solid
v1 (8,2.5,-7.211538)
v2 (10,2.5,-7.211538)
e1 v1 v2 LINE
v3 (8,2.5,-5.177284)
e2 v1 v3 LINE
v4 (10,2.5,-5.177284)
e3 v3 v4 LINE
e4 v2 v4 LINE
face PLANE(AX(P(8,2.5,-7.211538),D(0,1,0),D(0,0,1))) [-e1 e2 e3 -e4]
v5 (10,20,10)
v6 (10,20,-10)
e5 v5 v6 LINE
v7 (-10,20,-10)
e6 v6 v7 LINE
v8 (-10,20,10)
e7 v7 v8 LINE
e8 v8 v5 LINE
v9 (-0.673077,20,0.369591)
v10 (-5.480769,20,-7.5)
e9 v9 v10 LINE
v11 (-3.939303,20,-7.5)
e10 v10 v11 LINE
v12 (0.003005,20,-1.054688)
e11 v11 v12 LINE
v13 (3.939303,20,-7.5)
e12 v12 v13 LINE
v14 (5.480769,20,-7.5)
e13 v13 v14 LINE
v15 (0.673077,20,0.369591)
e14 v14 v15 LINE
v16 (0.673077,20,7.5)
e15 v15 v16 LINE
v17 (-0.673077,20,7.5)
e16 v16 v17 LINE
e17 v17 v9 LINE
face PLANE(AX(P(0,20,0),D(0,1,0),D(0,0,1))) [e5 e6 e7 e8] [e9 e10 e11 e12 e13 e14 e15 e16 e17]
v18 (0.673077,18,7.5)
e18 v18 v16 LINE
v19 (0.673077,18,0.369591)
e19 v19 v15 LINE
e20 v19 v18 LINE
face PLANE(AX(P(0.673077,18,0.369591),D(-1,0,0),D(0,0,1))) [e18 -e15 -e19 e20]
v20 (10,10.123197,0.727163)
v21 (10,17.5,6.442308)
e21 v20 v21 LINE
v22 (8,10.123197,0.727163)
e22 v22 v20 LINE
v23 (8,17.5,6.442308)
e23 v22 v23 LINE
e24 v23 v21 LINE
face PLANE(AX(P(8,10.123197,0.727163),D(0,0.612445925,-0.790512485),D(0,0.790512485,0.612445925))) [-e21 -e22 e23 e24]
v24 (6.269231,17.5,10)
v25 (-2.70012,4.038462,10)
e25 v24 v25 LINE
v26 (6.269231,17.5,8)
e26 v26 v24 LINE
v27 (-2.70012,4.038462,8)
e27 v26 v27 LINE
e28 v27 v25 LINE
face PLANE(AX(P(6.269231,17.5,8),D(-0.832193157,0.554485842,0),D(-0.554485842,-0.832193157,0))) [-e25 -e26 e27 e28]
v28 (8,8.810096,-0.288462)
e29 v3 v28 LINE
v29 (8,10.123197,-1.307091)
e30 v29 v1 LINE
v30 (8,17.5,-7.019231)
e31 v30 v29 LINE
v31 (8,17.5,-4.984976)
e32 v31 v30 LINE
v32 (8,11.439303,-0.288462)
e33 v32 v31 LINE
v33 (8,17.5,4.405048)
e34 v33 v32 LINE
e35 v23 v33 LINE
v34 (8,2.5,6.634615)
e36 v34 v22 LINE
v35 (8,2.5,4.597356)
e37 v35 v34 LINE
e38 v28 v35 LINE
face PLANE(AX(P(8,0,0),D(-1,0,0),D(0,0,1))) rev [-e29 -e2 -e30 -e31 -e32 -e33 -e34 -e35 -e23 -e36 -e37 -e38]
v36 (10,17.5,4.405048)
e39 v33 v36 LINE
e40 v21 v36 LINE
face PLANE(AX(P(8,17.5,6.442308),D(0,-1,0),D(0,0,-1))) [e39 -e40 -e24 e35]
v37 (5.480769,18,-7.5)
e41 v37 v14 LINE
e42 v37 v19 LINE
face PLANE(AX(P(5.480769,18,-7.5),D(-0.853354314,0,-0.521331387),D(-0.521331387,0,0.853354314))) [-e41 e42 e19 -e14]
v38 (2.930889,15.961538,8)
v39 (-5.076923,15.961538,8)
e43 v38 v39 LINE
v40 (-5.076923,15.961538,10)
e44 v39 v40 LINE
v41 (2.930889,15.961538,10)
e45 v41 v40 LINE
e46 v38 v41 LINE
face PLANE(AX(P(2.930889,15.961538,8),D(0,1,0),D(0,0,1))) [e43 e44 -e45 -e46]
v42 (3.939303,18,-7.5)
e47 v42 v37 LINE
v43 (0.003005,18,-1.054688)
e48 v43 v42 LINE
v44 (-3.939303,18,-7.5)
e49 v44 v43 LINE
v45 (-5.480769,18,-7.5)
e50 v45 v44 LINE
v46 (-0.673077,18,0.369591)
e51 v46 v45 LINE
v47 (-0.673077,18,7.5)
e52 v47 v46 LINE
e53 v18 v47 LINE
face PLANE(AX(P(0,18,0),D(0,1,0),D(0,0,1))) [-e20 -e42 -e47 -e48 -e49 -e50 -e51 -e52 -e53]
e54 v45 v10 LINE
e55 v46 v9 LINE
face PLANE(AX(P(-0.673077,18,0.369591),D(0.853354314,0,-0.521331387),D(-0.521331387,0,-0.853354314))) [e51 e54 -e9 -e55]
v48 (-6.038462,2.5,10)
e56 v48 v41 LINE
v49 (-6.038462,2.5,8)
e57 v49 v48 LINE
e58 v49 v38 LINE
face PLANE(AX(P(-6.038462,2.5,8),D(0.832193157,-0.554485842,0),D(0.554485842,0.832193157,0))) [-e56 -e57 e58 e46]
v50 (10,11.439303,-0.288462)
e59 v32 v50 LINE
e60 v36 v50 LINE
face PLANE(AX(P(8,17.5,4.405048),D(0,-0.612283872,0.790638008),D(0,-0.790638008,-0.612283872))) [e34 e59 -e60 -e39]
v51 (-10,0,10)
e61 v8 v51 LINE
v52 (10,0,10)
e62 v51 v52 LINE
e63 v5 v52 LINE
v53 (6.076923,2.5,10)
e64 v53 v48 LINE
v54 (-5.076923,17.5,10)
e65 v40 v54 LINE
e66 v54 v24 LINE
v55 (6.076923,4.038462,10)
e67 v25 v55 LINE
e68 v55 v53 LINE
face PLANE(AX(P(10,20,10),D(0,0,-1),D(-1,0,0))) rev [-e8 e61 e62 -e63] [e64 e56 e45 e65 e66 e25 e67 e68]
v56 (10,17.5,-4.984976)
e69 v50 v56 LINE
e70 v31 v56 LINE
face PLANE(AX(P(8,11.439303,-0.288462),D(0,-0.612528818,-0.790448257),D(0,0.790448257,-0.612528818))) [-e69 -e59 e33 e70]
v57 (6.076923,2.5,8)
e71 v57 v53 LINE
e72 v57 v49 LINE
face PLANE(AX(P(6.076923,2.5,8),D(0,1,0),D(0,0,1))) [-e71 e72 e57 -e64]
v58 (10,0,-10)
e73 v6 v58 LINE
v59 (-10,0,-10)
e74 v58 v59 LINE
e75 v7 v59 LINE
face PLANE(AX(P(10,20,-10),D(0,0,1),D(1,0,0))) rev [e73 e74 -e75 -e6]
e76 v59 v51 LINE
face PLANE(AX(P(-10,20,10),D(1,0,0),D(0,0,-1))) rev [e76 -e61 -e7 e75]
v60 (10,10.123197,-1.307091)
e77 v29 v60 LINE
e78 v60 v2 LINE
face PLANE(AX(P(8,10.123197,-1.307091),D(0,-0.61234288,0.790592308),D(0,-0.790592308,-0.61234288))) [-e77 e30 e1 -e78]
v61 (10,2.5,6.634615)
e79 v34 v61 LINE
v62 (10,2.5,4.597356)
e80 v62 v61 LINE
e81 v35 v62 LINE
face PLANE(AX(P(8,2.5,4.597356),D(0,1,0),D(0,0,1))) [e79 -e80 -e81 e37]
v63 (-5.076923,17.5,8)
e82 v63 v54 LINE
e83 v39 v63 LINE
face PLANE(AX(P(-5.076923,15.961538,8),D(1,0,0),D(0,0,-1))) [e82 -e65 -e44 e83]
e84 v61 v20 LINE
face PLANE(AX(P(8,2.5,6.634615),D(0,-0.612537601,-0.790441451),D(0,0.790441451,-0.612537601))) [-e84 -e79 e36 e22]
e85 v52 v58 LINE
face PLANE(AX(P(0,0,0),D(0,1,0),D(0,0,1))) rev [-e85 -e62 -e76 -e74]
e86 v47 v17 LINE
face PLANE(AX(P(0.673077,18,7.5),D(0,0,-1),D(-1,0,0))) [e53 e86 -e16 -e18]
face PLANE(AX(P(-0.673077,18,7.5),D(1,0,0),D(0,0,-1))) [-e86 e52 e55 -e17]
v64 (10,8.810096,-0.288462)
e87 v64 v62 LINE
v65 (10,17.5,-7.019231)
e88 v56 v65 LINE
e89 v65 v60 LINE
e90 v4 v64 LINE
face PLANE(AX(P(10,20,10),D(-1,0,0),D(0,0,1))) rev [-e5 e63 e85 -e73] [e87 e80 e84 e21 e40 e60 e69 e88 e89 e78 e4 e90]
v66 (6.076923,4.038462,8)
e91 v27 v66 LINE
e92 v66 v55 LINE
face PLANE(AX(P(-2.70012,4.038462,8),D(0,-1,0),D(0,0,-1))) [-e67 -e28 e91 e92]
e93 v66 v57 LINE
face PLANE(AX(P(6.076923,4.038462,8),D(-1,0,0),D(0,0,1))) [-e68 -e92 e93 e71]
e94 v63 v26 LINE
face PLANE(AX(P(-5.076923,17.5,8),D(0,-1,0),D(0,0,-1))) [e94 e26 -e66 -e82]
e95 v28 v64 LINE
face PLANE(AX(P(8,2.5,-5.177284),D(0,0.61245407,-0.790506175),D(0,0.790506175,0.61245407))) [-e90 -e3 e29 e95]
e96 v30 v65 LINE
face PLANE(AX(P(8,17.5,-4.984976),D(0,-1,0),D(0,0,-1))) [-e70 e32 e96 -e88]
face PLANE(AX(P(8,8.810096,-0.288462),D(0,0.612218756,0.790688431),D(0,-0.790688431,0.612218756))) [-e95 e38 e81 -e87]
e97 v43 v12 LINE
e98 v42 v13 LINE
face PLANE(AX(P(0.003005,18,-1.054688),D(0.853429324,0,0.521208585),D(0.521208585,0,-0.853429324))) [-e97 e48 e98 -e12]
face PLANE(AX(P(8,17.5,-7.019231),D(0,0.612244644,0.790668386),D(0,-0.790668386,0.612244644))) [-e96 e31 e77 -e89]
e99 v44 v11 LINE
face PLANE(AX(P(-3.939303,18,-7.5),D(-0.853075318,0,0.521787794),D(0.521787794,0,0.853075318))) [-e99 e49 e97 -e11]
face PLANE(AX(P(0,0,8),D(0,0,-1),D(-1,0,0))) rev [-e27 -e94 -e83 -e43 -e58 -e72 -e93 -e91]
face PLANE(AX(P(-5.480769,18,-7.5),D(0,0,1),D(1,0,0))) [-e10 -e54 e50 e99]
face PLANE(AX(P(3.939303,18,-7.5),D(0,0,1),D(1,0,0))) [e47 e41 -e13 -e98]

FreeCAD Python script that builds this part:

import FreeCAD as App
import Part
import Sketcher
from FreeCAD import Vector

doc = App.newDocument("Part")
params = doc.addObject("Spreadsheet::Sheet", "Params")
for row, (alias, value) in enumerate([
    ("sketch1_width", "20 mm"),
    ("pad1_length", "20 mm"),
    ("pocket1_length", "2 mm"),
    ("pocket2_length", "2 mm"),
    ("pocket3_length", "2 mm"),
], start=1):
    params.set(f"A{row}", alias)
    params.set(f"B{row}", "=" + value)
    params.setAlias(f"B{row}", alias)

body = doc.addObject("PartDesign::Body", "Body")

# Sketch on XZ plane
sketch1 = body.newObject("Sketcher::SketchObject", "Sketch")
sketch1.AttachmentSupport = (doc.getObject("XZ_Plane"), [""])
sketch1.MapMode = "FlatFace"
sketch1.addGeometry(Part.LineSegment(Vector(-10, -10, 0), Vector(-10, 10, 0)), False)
sketch1.addGeometry(Part.LineSegment(Vector(-10, 10, 0), Vector(10, 10, 0)), False)
sketch1.addGeometry(Part.LineSegment(Vector(10, 10, 0), Vector(10, -10, 0)), False)
sketch1.addGeometry(Part.LineSegment(Vector(10, -10, 0), Vector(-10, -10, 0)), False)
sketch1.addConstraint(Sketcher.Constraint("Coincident", 0, 2, 1, 1))
sketch1.addConstraint(Sketcher.Constraint("Coincident", 1, 2, 2, 1))
sketch1.addConstraint(Sketcher.Constraint("Coincident", 2, 2, 3, 1))
sketch1.addConstraint(Sketcher.Constraint("Coincident", 3, 2, 0, 1))
sketch1.addConstraint(Sketcher.Constraint("Vertical", 0))
sketch1.addConstraint(Sketcher.Constraint("Horizontal", 1))
sketch1.addConstraint(Sketcher.Constraint("Vertical", 2))
sketch1.addConstraint(Sketcher.Constraint("Horizontal", 3))
sketch1.addConstraint(Sketcher.Constraint("Symmetric", 0, 2, 2, 2, -1, 1))
sketch1.addConstraint(Sketcher.Constraint("Equal", 3, 0))
sketch1.addConstraint(Sketcher.Constraint("DistanceX", 1, 1, 1, 2, 20.0))
sketch1.setExpression("Constraints[10]", "Params.sketch1_width")
pad1 = body.newObject("PartDesign::Pad", "Pad")
pad1.Profile = sketch1
pad1.setExpression("Length", "Params.pad1_length")
pad1.Reversed = True

# Sketch on XY plane
sketch2 = body.newObject("Sketcher::SketchObject", "Sketch001")
sketch2.AttachmentSupport = (doc.getObject("XY_Plane"), [""])
sketch2.MapMode = "FlatFace"
sketch2.AttachmentOffset = App.Placement(Vector(0, 0, 10), App.Rotation())
sketch2.addGeometry(Part.LineSegment(Vector(-5.076923, 17.5, 0), Vector(-5.076923, 15.961538, 0)), False)
sketch2.addGeometry(Part.LineSegment(Vector(-5.076923, 15.961538, 0), Vector(2.930889, 15.961538, 0)), False)
sketch2.addGeometry(Part.LineSegment(Vector(2.930889, 15.961538, 0), Vector(-6.038462, 2.5, 0)), False)
sketch2.addGeometry(Part.LineSegment(Vector(-6.038462, 2.5, 0), Vector(6.076923, 2.5, 0)), False)
sketch2.addGeometry(Part.LineSegment(Vector(6.076923, 2.5, 0), Vector(6.076923, 4.038462, 0)), False)
sketch2.addGeometry(Part.LineSegment(Vector(6.076923, 4.038462, 0), Vector(-2.70012, 4.038462, 0)), False)
sketch2.addGeometry(Part.LineSegment(Vector(-2.70012, 4.038462, 0), Vector(6.269231, 17.5, 0)), False)
sketch2.addGeometry(Part.LineSegment(Vector(6.269231, 17.5, 0), Vector(-5.076923, 17.5, 0)), False)
sketch2.addConstraint(Sketcher.Constraint("Coincident", 0, 2, 1, 1))
sketch2.addConstraint(Sketcher.Constraint("Coincident", 1, 2, 2, 1))
sketch2.addConstraint(Sketcher.Constraint("Coincident", 2, 2, 3, 1))
sketch2.addConstraint(Sketcher.Constraint("Coincident", 3, 2, 4, 1))
sketch2.addConstraint(Sketcher.Constraint("Coincident", 4, 2, 5, 1))
sketch2.addConstraint(Sketcher.Constraint("Coincident", 5, 2, 6, 1))
sketch2.addConstraint(Sketcher.Constraint("Coincident", 6, 2, 7, 1))
sketch2.addConstraint(Sketcher.Constraint("Coincident", 7, 2, 0, 1))
sketch2.addConstraint(Sketcher.Constraint("Vertical", 0))
sketch2.addConstraint(Sketcher.Constraint("Horizontal", 1))
sketch2.addConstraint(Sketcher.Constraint("Horizontal", 3))
sketch2.addConstraint(Sketcher.Constraint("Vertical", 4))
sketch2.addConstraint(Sketcher.Constraint("Horizontal", 5))
sketch2.addConstraint(Sketcher.Constraint("Horizontal", 7))
sketch2.addConstraint(Sketcher.Constraint("Parallel", 2, 6))
sketch2.addConstraint(Sketcher.Constraint("Equal", 0, 4))
sketch2.addConstraint(Sketcher.Constraint("DistanceY", 3, 2, 6, 2, 15.0))
sketch2.addConstraint(Sketcher.Constraint("DistanceY", -1, 1, 2, 2, 2.5))
sketch2.addConstraint(Sketcher.Constraint("DistanceY", 0, 2, 0, 1, 1.538462))
sketch2.addConstraint(Sketcher.Constraint("Distance", 2, 16.175978))
sketch2.addConstraint(Sketcher.Constraint("DistanceX", 1, 1, 1, 2, 8.007812))
sketch2.addConstraint(Sketcher.Constraint("DistanceX", 3, 1, 3, 2, 12.115385))
sketch2.addConstraint(Sketcher.Constraint("DistanceX", 5, 2, 5, 1, 8.777043))
sketch2.addConstraint(Sketcher.Constraint("DistanceX", -1, 1, 1, 2, 2.930889))
pocket1 = body.newObject("PartDesign::Pocket", "Pocket")
pocket1.Profile = sketch2
pocket1.setExpression("Length", "Params.pocket1_length")

# Sketch on YZ plane
sketch3 = body.newObject("Sketcher::SketchObject", "Sketch002")
sketch3.AttachmentSupport = (doc.getObject("YZ_Plane"), [""])
sketch3.MapMode = "FlatFace"
sketch3.AttachmentOffset = App.Placement(Vector(0, 0, 10), App.Rotation())
sketch3.addGeometry(Part.LineSegment(Vector(17.5, 4.405048, 0), Vector(17.5, 6.442308, 0)), False)
sketch3.addGeometry(Part.LineSegment(Vector(17.5, 6.442308, 0), Vector(10.123197, 0.727163, 0)), False)
sketch3.addGeometry(Part.LineSegment(Vector(10.123197, 0.727163, 0), Vector(2.5, 6.634615, 0)), False)
sketch3.addGeometry(Part.LineSegment(Vector(2.5, 6.634615, 0), Vector(2.5, 4.597356, 0)), False)
sketch3.addGeometry(Part.LineSegment(Vector(2.5, 4.597356, 0), Vector(8.810096, -0.288462, 0)), False)
sketch3.addGeometry(Part.LineSegment(Vector(8.810096, -0.288462, 0), Vector(2.5, -5.177284, 0)), False)
sketch3.addGeometry(Part.LineSegment(Vector(2.5, -5.177284, 0), Vector(2.5, -7.211538, 0)), False)
sketch3.addGeometry(Part.LineSegment(Vector(2.5, -7.211538, 0), Vector(10.123197, -1.307091, 0)), False)
sketch3.addGeometry(Part.LineSegment(Vector(10.123197, -1.307091, 0), Vector(17.5, -7.019231, 0)), False)
sketch3.addGeometry(Part.LineSegment(Vector(17.5, -7.019231, 0), Vector(17.5, -4.984976, 0)), False)
sketch3.addGeometry(Part.LineSegment(Vector(17.5, -4.984976, 0), Vector(11.439303, -0.288462, 0)), False)
sketch3.addGeometry(Part.LineSegment(Vector(11.439303, -0.288462, 0), Vector(17.5, 4.405048, 0)), False)
sketch3.addConstraint(Sketcher.Constraint("Coincident", 0, 2, 1, 1))
sketch3.addConstraint(Sketcher.Constraint("Coincident", 1, 2, 2, 1))
sketch3.addConstraint(Sketcher.Constraint("Coincident", 2, 2, 3, 1))
sketch3.addConstraint(Sketcher.Constraint("Coincident", 3, 2, 4, 1))
sketch3.addConstraint(Sketcher.Constraint("Coincident", 4, 2, 5, 1))
sketch3.addConstraint(Sketcher.Constraint("Coincident", 5, 2, 6, 1))
sketch3.addConstraint(Sketcher.Constraint("Coincident", 6, 2, 7, 1))
sketch3.addConstraint(Sketcher.Constraint("Coincident", 7, 2, 8, 1))
sketch3.addConstraint(Sketcher.Constraint("Coincident", 8, 2, 9, 1))
sketch3.addConstraint(Sketcher.Constraint("Coincident", 9, 2, 10, 1))
sketch3.addConstraint(Sketcher.Constraint("Coincident", 10, 2, 11, 1))
sketch3.addConstraint(Sketcher.Constraint("Coincident", 11, 2, 0, 1))
sketch3.addConstraint(Sketcher.Constraint("Vertical", 0))
sketch3.addConstraint(Sketcher.Constraint("Vertical", 3))
sketch3.addConstraint(Sketcher.Constraint("Vertical", 6))
sketch3.addConstraint(Sketcher.Constraint("Vertical", 9))
sketch3.addConstraint(Sketcher.Constraint("Horizontal", 4, 2, 10, 2))
sketch3.addConstraint(Sketcher.Constraint("Vertical", 3, 2, 5, 2))
sketch3.addConstraint(Sketcher.Constraint("Vertical", 1, 2, 7, 2))
sketch3.addConstraint(Sketcher.Constraint("Vertical", 0, 2, 8, 2))
sketch3.addConstraint(Sketcher.Constraint("Equal", 0, 3))
sketch3.addConstraint(Sketcher.Constraint("Equal", 6, 9))
sketch3.addConstraint(Sketcher.Constraint("DistanceX", 2, 2, 0, 2, 15.0))
sketch3.addConstraint(Sketcher.Constraint("DistanceX", -1, 1, 0, 2, 17.5))
sketch3.addConstraint(Sketcher.Constraint("DistanceY", 0, 1, 0, 2, 2.03726))
sketch3.addConstraint(Sketcher.Constraint("DistanceX", 4, 2, 1, 2, 1.313101))
sketch3.addConstraint(Sketcher.Constraint("DistanceY", 5, 2, 2, 2, 11.811899))
sketch3.addConstraint(Sketcher.Constraint("DistanceY", 6, 2, 1, 2, 7.938702))
sketch3.addConstraint(Sketcher.Constraint("Distance", 1, 9.331672))
sketch3.addConstraint(Sketcher.Constraint("Distance", 4, 7.980509))
sketch3.addConstraint(Sketcher.Constraint("Distance", 5, 7.982349))
sketch3.addConstraint(Sketcher.Constraint("Distance", 8, 9.329832))
sketch3.addConstraint(Sketcher.Constraint("DistanceY", 6, 2, 6, 1, 2.034255))
sketch3.addConstraint(Sketcher.Constraint("DistanceY", 4, 2, -1, 1, 0.288462))
sketch3.addConstraint(Sketcher.Constraint("DistanceY", 7, 2, -1, 1, 1.307091))
sketch3.addConstraint(Sketcher.Constraint("Distance", 10, 7.667418))
pocket2 = body.newObject("PartDesign::Pocket", "Pocket001")
pocket2.Profile = sketch3
pocket2.setExpression("Length", "Params.pocket2_length")

# Sketch on XZ plane
sketch4 = body.newObject("Sketcher::SketchObject", "Sketch003")
sketch4.AttachmentSupport = (doc.getObject("XZ_Plane"), [""])
sketch4.MapMode = "FlatFace"
sketch4.AttachmentOffset = App.Placement(Vector(0, 0, -20), App.Rotation())
sketch4.addGeometry(Part.LineSegment(Vector(-3.939303, -7.5, 0), Vector(-5.480769, -7.5, 0)), False)
sketch4.addGeometry(Part.LineSegment(Vector(-5.480769, -7.5, 0), Vector(-0.673077, 0.369591, 0)), False)
sketch4.addGeometry(Part.LineSegment(Vector(-0.673077, 0.369591, 0), Vector(-0.673077, 7.5, 0)), False)
sketch4.addGeometry(Part.LineSegment(Vector(-0.673077, 7.5, 0), Vector(0.673077, 7.5, 0)), False)
sketch4.addGeometry(Part.LineSegment(Vector(0.673077, 7.5, 0), Vector(0.673077, 0.369591, 0)), False)
sketch4.addGeometry(Part.LineSegment(Vector(0.673077, 0.369591, 0), Vector(5.480769, -7.5, 0)), False)
sketch4.addGeometry(Part.LineSegment(Vector(5.480769, -7.5, 0), Vector(3.939303, -7.5, 0)), False)
sketch4.addGeometry(Part.LineSegment(Vector(3.939303, -7.5, 0), Vector(0.003005, -1.054688, 0)), False)
sketch4.addGeometry(Part.LineSegment(Vector(0.003005, -1.054688, 0), Vector(-3.939303, -7.5, 0)), False)
sketch4.addConstraint(Sketcher.Constraint("Coincident", 0, 2, 1, 1))
sketch4.addConstraint(Sketcher.Constraint("Coincident", 1, 2, 2, 1))
sketch4.addConstraint(Sketcher.Constraint("Coincident", 2, 2, 3, 1))
sketch4.addConstraint(Sketcher.Constraint("Coincident", 3, 2, 4, 1))
sketch4.addConstraint(Sketcher.Constraint("Coincident", 4, 2, 5, 1))
sketch4.addConstraint(Sketcher.Constraint("Coincident", 5, 2, 6, 1))
sketch4.addConstraint(Sketcher.Constraint("Coincident", 6, 2, 7, 1))
sketch4.addConstraint(Sketcher.Constraint("Coincident", 7, 2, 8, 1))
sketch4.addConstraint(Sketcher.Constraint("Coincident", 8, 2, 0, 1))
sketch4.addConstraint(Sketcher.Constraint("Horizontal", 0))
sketch4.addConstraint(Sketcher.Constraint("Vertical", 2))
sketch4.addConstraint(Sketcher.Constraint("Horizontal", 3))
sketch4.addConstraint(Sketcher.Constraint("Vertical", 4))
sketch4.addConstraint(Sketcher.Constraint("Horizontal", 6))
sketch4.addConstraint(Sketcher.Constraint("Symmetric", 1, 2, 4, 2, -2))
sketch4.addConstraint(Sketcher.Constraint("Symmetric", 0, 2, 5, 2, -2))
sketch4.addConstraint(Sketcher.Constraint("Equal", 0, 6))
sketch4.addConstraint(Sketcher.Constraint("DistanceY", 0, 2, 2, 2, 15.0))
sketch4.addConstraint(Sketcher.Constraint("DistanceY", 0, 2, -1, 1, 7.5))
sketch4.addConstraint(Sketcher.Constraint("DistanceY", 2, 1, 2, 2, 7.130409))
sketch4.addConstraint(Sketcher.Constraint("DistanceX", 7, 2, 6, 2, 3.936298))
sketch4.addConstraint(Sketcher.Constraint("Distance", 1, 9.221951))
sketch4.addConstraint(Sketcher.Constraint("Distance", 7, 7.552251))
sketch4.addConstraint(Sketcher.Constraint("DistanceX", 0, 2, 0, 1, 1.541466))
sketch4.addConstraint(Sketcher.Constraint("DistanceX", 3, 1, 3, 2, 1.346154))
pocket3 = body.newObject("PartDesign::Pocket", "Pocket002")
pocket3.Profile = sketch4
pocket3.setExpression("Length", "Params.pocket3_length")
pocket3.Reversed = True

doc.recompute()
